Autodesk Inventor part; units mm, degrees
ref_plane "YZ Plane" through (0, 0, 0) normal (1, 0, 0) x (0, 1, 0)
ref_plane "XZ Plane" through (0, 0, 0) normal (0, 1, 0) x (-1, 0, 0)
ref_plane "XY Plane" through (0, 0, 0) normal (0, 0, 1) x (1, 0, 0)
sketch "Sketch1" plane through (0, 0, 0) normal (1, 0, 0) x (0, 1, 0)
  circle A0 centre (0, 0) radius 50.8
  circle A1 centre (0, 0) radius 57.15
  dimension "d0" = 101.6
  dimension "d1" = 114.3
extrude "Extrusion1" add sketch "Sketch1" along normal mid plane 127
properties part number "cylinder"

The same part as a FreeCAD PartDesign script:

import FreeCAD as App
import Part
import Sketcher
Q = App.Units.Quantity

doc = App.newDocument("Part")
body = doc.addObject("PartDesign::Body", "Body")

# Sketch on YZ plane
sketch1 = doc.addObject("Sketcher::SketchObject", "Sketch")
body.addObject(sketch1)
sketch1.AttachmentSupport = (doc.YZ_Plane, [""])
sketch1.MapMode = "FlatFace"
sketch1.addGeometry(Part.Circle(App.Vector(0, 0, 0), App.Vector(0, 0, 1), 57), False)
sketch1.addGeometry(Part.Circle(App.Vector(0, 0, 0), App.Vector(0, 0, 1), 51), False)
sketch1.addConstraint(Sketcher.Constraint("Coincident", 0, 3, -1, 1))
sketch1.addConstraint(Sketcher.Constraint("Coincident", 1, 3, -1, 1))
sketch1.addConstraint(Sketcher.Constraint("Diameter", 1, Q("4 in")))
sketch1.addConstraint(Sketcher.Constraint("Diameter", 0, Q("4.5 in")))
pad1 = doc.addObject("PartDesign::Pad", "Pad")
body.addObject(pad1)
pad1.Profile = sketch1
pad1.Length = Q("5 in")
pad1.Midplane = True

doc.recompute()
